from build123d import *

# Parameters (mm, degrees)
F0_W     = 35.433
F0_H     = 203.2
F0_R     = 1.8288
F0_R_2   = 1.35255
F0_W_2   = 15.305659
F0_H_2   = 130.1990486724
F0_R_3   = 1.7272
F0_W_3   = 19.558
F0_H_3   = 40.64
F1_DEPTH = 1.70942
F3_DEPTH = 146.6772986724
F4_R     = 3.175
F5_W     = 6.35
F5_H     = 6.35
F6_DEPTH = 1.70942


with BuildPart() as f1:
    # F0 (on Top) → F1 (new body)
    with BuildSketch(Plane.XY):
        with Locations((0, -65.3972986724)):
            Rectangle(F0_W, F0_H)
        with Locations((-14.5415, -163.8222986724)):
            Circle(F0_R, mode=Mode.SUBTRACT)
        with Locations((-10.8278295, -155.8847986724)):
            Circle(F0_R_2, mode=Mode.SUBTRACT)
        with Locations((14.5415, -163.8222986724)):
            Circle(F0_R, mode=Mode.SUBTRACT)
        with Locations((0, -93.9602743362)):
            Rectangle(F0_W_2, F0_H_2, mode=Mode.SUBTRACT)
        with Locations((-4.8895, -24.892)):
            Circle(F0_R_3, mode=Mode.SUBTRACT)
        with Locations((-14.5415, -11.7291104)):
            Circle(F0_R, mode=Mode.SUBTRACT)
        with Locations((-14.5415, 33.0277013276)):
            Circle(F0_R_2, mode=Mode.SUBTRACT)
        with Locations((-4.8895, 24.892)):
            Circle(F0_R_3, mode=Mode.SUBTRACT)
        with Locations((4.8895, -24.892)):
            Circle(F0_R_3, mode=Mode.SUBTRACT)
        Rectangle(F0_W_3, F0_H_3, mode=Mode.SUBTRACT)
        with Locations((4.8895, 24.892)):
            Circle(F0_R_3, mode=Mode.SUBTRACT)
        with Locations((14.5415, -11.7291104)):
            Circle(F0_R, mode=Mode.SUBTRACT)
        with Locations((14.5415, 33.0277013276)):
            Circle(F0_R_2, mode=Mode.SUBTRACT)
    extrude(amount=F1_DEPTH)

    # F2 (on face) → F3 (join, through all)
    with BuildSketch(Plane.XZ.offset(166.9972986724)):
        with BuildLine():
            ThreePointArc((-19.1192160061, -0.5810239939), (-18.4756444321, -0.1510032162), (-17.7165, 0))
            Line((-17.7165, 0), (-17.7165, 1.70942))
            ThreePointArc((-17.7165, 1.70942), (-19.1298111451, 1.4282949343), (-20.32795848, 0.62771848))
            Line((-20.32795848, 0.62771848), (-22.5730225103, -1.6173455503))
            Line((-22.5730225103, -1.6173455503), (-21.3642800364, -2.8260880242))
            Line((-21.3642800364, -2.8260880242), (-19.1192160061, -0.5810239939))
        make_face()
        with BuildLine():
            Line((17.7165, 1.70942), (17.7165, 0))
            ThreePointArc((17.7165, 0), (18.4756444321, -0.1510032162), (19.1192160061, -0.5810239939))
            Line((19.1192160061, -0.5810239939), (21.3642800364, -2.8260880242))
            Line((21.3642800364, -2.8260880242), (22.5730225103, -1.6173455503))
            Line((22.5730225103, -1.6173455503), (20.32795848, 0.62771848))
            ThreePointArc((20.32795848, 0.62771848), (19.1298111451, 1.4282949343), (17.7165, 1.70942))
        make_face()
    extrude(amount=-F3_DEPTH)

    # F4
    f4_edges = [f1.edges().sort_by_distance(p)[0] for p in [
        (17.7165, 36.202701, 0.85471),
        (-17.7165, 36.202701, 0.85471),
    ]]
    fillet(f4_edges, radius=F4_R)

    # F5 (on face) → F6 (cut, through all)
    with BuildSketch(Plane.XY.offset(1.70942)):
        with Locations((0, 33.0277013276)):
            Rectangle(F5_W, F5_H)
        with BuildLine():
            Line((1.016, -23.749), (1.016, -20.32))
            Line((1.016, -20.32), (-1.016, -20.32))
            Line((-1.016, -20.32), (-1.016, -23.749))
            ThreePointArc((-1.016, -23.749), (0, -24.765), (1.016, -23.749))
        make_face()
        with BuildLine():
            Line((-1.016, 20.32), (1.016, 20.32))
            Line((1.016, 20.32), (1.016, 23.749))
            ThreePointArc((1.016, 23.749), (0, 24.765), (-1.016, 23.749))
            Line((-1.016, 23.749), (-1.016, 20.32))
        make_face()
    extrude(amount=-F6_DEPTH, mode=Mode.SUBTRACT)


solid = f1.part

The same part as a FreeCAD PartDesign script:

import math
import FreeCAD as App
import Part
import Sketcher
from FreeCAD import Vector
Q = App.Units.Quantity


def edges_at(feature, points):
    """Names of the edges that pass closest to the given points."""
    edges = feature.Shape.Edges
    near = lambda p: min(range(len(edges)), key=lambda i: edges[i].distToShape(Part.Vertex(*p))[0])
    return sorted({f"Edge{near(p) + 1}" for p in points})


def add_polygon(sketch, points):
    """Adds a closed chain of lines whose ends are joined by coincident constraints."""
    first, n = sketch.GeometryCount, len(points)
    for a, b in zip(points, points[1:] + points[:1]):
        sketch.addGeometry(Part.LineSegment(App.Vector(*a, 0), App.Vector(*b, 0)), False)
    for i in range(n):
        sketch.addConstraint(Sketcher.Constraint("Coincident", first + i, 2, first + (i + 1) % n, 1))

doc = App.newDocument("Part")
params = doc.addObject("Spreadsheet::Sheet", "Params")
for row, (alias, value) in enumerate([
    ("sketch1_height", "8 in"),
    ("sketch1_diameter", "0.144 in"),
    ("sketch1_diameter2", "0.136 in"),
    ("sketch1_height2", "1.6 in"),
    ("sketch1_width", "0.77 in"),
    ("pad1_length", "0.0673 in"),
    ("sketch2_length", "0.125 in"),
    ("pad2_length", "146.677299 mm"),
    ("fillet_radius", "0.125 in"),
    ("sketch3_radius", "0.04 in"),
    ("sketch3_width", "0.25 in"),
    ("sketch3_height", "0.135 in"),
], start=1):
    params.set(f"A{row}", alias)
    params.set(f"B{row}", "=" + value)
    params.setAlias(f"B{row}", alias)

body = doc.addObject("PartDesign::Body", "Body")

# Sketch on XY plane
sketch1 = doc.addObject("Sketcher::SketchObject", "Sketch")
body.addObject(sketch1)
sketch1.AttachmentSupport = (doc.XY_Plane, [""])
sketch1.MapMode = "FlatFace"
add_polygon(sketch1, [(-17.7, 36.2), (-17.7, -167), (17.7, -167), (17.7, 36.2)])  # lines 0-3
sketch1.addGeometry(Part.Circle(Vector(-14.5, -163.8, 0), Vector(0, 0, 1), 1.8), False)  # 4
sketch1.addGeometry(Part.Circle(Vector(-10.8, -155.9, 0), Vector(0, 0, 1), 1.4), False)  # 5
sketch1.addGeometry(Part.Circle(Vector(14.5, -163.8, 0), Vector(0, 0, 1), 1.8), False)  # 6
add_polygon(sketch1, [(7.7, -159.1), (-7.7, -159.1), (-7.7, -28.9), (7.7, -28.9)])  # lines 7-10
sketch1.addGeometry(Part.Circle(Vector(-4.9, -24.9, 0), Vector(0, 0, 1), 1.7), False)  # 11
sketch1.addGeometry(Part.Circle(Vector(-14.5, -11.7, 0), Vector(0, 0, 1), 1.8), False)  # 12
sketch1.addGeometry(Part.Circle(Vector(-14.5, 33, 0), Vector(0, 0, 1), 1.4), False)  # 13
sketch1.addGeometry(Part.Circle(Vector(-4.9, 24.9, 0), Vector(0, 0, 1), 1.7), False)  # 14
sketch1.addGeometry(Part.Circle(Vector(4.9, -24.9, 0), Vector(0, 0, 1), 1.7), False)  # 15
add_polygon(sketch1, [(9.8, -20.3), (-9.8, -20.3), (-9.8, 20.3), (9.8, 20.3)])  # lines 16-19
sketch1.addGeometry(Part.Circle(Vector(4.9, 24.9, 0), Vector(0, 0, 1), 1.7), False)  # 20
sketch1.addGeometry(Part.Circle(Vector(14.5, -11.7, 0), Vector(0, 0, 1), 1.8), False)  # 21
sketch1.addGeometry(Part.Circle(Vector(14.5, 33, 0), Vector(0, 0, 1), 1.4), False)  # 22
sketch1.addConstraint([
    Sketcher.Constraint("Vertical", 0),
    Sketcher.Constraint("Horizontal", 1),
    Sketcher.Constraint("Vertical", 2),
    Sketcher.Constraint("Horizontal", 3),
    Sketcher.Constraint("Horizontal", 7),
    Sketcher.Constraint("Vertical", 8),
    Sketcher.Constraint("Horizontal", 9),
    Sketcher.Constraint("Vertical", 10),
    Sketcher.Constraint("Horizontal", 16),
    Sketcher.Constraint("Vertical", 17),
    Sketcher.Constraint("Horizontal", 18),
    Sketcher.Constraint("Vertical", 19),
    Sketcher.Constraint("Equal", 4, 6),
    Sketcher.Constraint("Equal", 6, 12),
    Sketcher.Constraint("Equal", 5, 13),
    Sketcher.Constraint("Equal", 11, 14),
    Sketcher.Constraint("Equal", 14, 15),
    Sketcher.Constraint("Equal", 15, 20),
    Sketcher.Constraint("Equal", 12, 21),
    Sketcher.Constraint("Equal", 13, 22),
    Sketcher.Constraint("Symmetric", 14, 3, 15, 3, -1, 1),
    Sketcher.Constraint("Symmetric", 11, 3, 20, 3, -1, 1),
    Sketcher.Constraint("Symmetric", 16, 2, 18, 2, -1, 1),
    Sketcher.Constraint("Symmetric", 4, 3, 6, 3, -2),
    Sketcher.Constraint("Symmetric", 11, 3, 15, 3, -2),
    Sketcher.Constraint("Symmetric", 12, 3, 21, 3, -2),
    Sketcher.Constraint("Symmetric", 13, 3, 22, 3, -2),
    Sketcher.Constraint("Vertical", 4, 3, 12, 3),
    Sketcher.Constraint("Vertical", 12, 3, 13, 3),
    Sketcher.Constraint("DistanceY", 0, 2, 0, 1, Q("8 in")),
    Sketcher.Constraint("Diameter", 4, Q("0.144 in")),
    Sketcher.Constraint("Diameter", 11, Q("0.136 in")),
    Sketcher.Constraint("DistanceY", 17, 1, 17, 2, Q("1.6 in")),
    Sketcher.Constraint("Diameter", 5, Q("0.1065 in")),
    Sketcher.Constraint("DistanceX", 16, 2, 16, 1, Q("0.77 in")),
    Sketcher.Constraint("DistanceX", 1, 1, 1, 2, Q("1.395 in")),
    Sketcher.Constraint("DistanceY", 11, 3, -1, 1, Q("0.98 in")),
    Sketcher.Constraint("DistanceX", 4, 3, 11, 3, Q("0.38 in")),
    Sketcher.Constraint("DistanceY", 4, 3, 13, 3, Q("7.75 in")),
    Sketcher.Constraint("DistanceX", 0, 2, 6, 3, Q("1.27 in")),
    Sketcher.Constraint("DistanceX", 4, 3, 1, 2, Q("1.27 in")),
    Sketcher.Constraint("DistanceY", 4, 3, 5, 3, Q("0.3125 in")),
    Sketcher.Constraint("DistanceY", 0, 2, 4, 3, Q("0.125 in")),
    Sketcher.Constraint("DistanceX", 5, 3, 7, 2, Q("0.125 in")),
    Sketcher.Constraint("DistanceY", 7, 2, 5, 3, Q("0.125 in")),
    Sketcher.Constraint("DistanceY", 8, 2, 11, 3, Q("0.15625 in")),
    Sketcher.Constraint("DistanceX", 7, 2, 7, 1, Q("15.305659 mm")),
    Sketcher.Constraint("DistanceY", 8, 1, 8, 2, Q("130.199049 mm")),
    Sketcher.Constraint("DistanceX", 5, 3, -1, 1, Q("10.827829 mm")),
    Sketcher.Constraint("DistanceY", 12, 3, -1, 1, Q("11.72911 mm")),
])
sketch1.setExpression("Constraints[41]", "Params.sketch1_height")
sketch1.setExpression("Constraints[42]", "Params.sketch1_diameter")
sketch1.setExpression("Constraints[43]", "Params.sketch1_diameter2")
sketch1.setExpression("Constraints[44]", "Params.sketch1_height2")
sketch1.setExpression("Constraints[46]", "Params.sketch1_width")
pad1 = doc.addObject("PartDesign::Pad", "Pad")
body.addObject(pad1)
pad1.Profile = sketch1
pad1.setExpression("Length", "Params.pad1_length")

# Sketch on XZ plane
sketch2 = doc.addObject("Sketcher::SketchObject", "Sketch001")
body.addObject(sketch2)
sketch2.AttachmentSupport = (doc.XZ_Plane, [""])
sketch2.MapMode = "FlatFace"
sketch2.AttachmentOffset = App.Placement(Vector(0, 0, 166.997299), App.Rotation())
sketch2.addGeometry([
    Part.ArcOfCircle(Part.Circle(Vector(-17.7, -2, 0), Vector(0, 0, 1), 2), math.radians(90), math.radians(135)),  # 0
    Part.LineSegment(Vector(-17.7, 0, 0), Vector(-17.7, 1.7, 0)),  # 1
    Part.ArcOfCircle(Part.Circle(Vector(-17.7, -2, 0), Vector(0, 0, 1), 3.7), math.radians(90), math.radians(135)),  # 2
    Part.LineSegment(Vector(-20.3, 0.6, 0), Vector(-22.6, -1.6, 0)),  # 3
    Part.LineSegment(Vector(-22.6, -1.6, 0), Vector(-21.4, -2.8, 0)),  # 4
    Part.LineSegment(Vector(-21.4, -2.8, 0), Vector(-19.1, -0.6, 0)),  # 5
    Part.LineSegment(Vector(17.7, 1.7, 0), Vector(17.7, 0, 0)),  # 6
    Part.ArcOfCircle(Part.Circle(Vector(17.7, -2, 0), Vector(0, 0, 1), 2), math.radians(45), math.radians(90)),  # 7
    Part.LineSegment(Vector(19.1, -0.6, 0), Vector(21.4, -2.8, 0)),  # 8
    Part.LineSegment(Vector(21.4, -2.8, 0), Vector(22.6, -1.6, 0)),  # 9
    Part.LineSegment(Vector(22.6, -1.6, 0), Vector(20.3, 0.6, 0)),  # 10
    Part.ArcOfCircle(Part.Circle(Vector(17.7, -2, 0), Vector(0, 0, 1), 3.7), math.radians(45), math.radians(90)),  # 11
], False)
sketch2.addConstraint([
    Sketcher.Constraint("Coincident", 0, 1, 1, 1),
    Sketcher.Constraint("Coincident", 1, 2, 2, 1),
    Sketcher.Constraint("Tangent", 2, 2, 3, 1),
    Sketcher.Constraint("Coincident", 3, 2, 4, 1),
    Sketcher.Constraint("Coincident", 4, 2, 5, 1),
    Sketcher.Constraint("Tangent", 5, 2, 0, 2),
    Sketcher.Constraint("Coincident", 6, 2, 7, 2),
    Sketcher.Constraint("Tangent", 7, 1, 8, 1),
    Sketcher.Constraint("Coincident", 8, 2, 9, 1),
    Sketcher.Constraint("Coincident", 9, 2, 10, 1),
    Sketcher.Constraint("Tangent", 10, 2, 11, 1),
    Sketcher.Constraint("Coincident", 11, 2, 6, 1),
    Sketcher.Constraint("Vertical", 1),
    Sketcher.Constraint("Vertical", 6),
    Sketcher.Constraint("Coincident", 2, 3, 0, 3),
    Sketcher.Constraint("Coincident", 11, 3, 7, 3),
    Sketcher.Constraint("Equal", 0, 7),
    Sketcher.Constraint("Equal", 2, 11),
    Sketcher.Constraint("Symmetric", 0, 1, 6, 2, -1, 1),
    Sketcher.Constraint("Symmetric", 0, 3, 7, 3, -2),
    Sketcher.Constraint("Symmetric", 4, 2, 8, 2, -2),
    Sketcher.Constraint("Symmetric", 3, 2, 9, 2, -2),
    Sketcher.Constraint("Perpendicular", 3, 4),
    Sketcher.Constraint("Perpendicular", 4, 5),
    Sketcher.Constraint("Perpendicular", 5, 8),
    Sketcher.Constraint("Vertical", 2, 3, 0, 1),
    Sketcher.Constraint("Radius", 0, Q("0.0781 in")),
    Sketcher.Constraint("Radius", 2, Q("0.1454 in")),
    Sketcher.Constraint("Distance", 3, Q("0.125 in")),
    Sketcher.Constraint("DistanceX", 0, 3, 7, 3, Q("1.395 in")),
])
sketch2.setExpression("Constraints[28]", "Params.sketch2_length")
pad2 = doc.addObject("PartDesign::Pad", "Pad001")
body.addObject(pad2)
pad2.Profile = sketch2
pad2.setExpression("Length", "Params.pad2_length")
pad2.Reversed = True
doc.recompute()

fillet = doc.addObject("PartDesign::Fillet", "Fillet")
body.addObject(fillet)
fillet.Base = (pad2, edges_at(pad2, [(17.716, 36.203, 0.855), (-17.716, 36.203, 0.855)]))
fillet.setExpression("Radius", "Params.fillet_radius")

# Sketch on XY plane
sketch3 = doc.addObject("Sketcher::SketchObject", "Sketch002")
body.addObject(sketch3)
sketch3.AttachmentSupport = (doc.XY_Plane, [""])
sketch3.MapMode = "FlatFace"
sketch3.AttachmentOffset = App.Placement(Vector(0, 0, 0.0673 * 25.4), App.Rotation())
add_polygon(sketch3, [(-3.2, 36.2), (-3.2, 29.9), (3.2, 29.9), (3.2, 36.2)])  # lines 0-3
sketch3.addGeometry(Part.LineSegment(Vector(1, -23.7, 0), Vector(1, -20.3, 0)), False)  # 4
sketch3.addGeometry(Part.LineSegment(Vector(1, -20.3, 0), Vector(-1, -20.3, 0)), False)  # 5
sketch3.addGeometry(Part.LineSegment(Vector(-1, -20.3, 0), Vector(-1, -23.7, 0)), False)  # 6
sketch3.addGeometry(Part.ArcOfCircle(Part.Circle(Vector(0, -23.7, 0), Vector(0, 0, 1), 1), math.radians(180), math.radians(360)), False)  # 7
sketch3.addGeometry(Part.LineSegment(Vector(-1, 20.3, 0), Vector(1, 20.3, 0)), False)  # 8
sketch3.addGeometry(Part.LineSegment(Vector(1, 20.3, 0), Vector(1, 23.7, 0)), False)  # 9
sketch3.addGeometry(Part.ArcOfCircle(Part.Circle(Vector(0, 23.7, 0), Vector(0, 0, 1), 1), math.radians(0), math.radians(180)), False)  # 10
sketch3.addGeometry(Part.LineSegment(Vector(-1, 23.7, 0), Vector(-1, 20.3, 0)), False)  # 11
sketch3.addConstraint([
    Sketcher.Constraint("Coincident", 4, 2, 5, 1),
    Sketcher.Constraint("Coincident", 5, 2, 6, 1),
    Sketcher.Constraint("Tangent", 6, 2, 7, 1),
    Sketcher.Constraint("Tangent", 7, 2, 4, 1),
    Sketcher.Constraint("Coincident", 8, 2, 9, 1),
    Sketcher.Constraint("Tangent", 9, 2, 10, 1),
    Sketcher.Constraint("Tangent", 10, 2, 11, 1),
    Sketcher.Constraint("Coincident", 11, 2, 8, 1),
    Sketcher.Constraint("Vertical", 0),
    Sketcher.Constraint("Horizontal", 1),
    Sketcher.Constraint("Vertical", 2),
    Sketcher.Constraint("Horizontal", 3),
    Sketcher.Constraint("Vertical", 4),
    Sketcher.Constraint("Horizontal", 5),
    Sketcher.Constraint("Vertical", 6),
    Sketcher.Constraint("Horizontal", 8),
    Sketcher.Constraint("Vertical", 9),
    Sketcher.Constraint("Vertical", 11),
    Sketcher.Constraint("Equal", 7, 10),
    Sketcher.Constraint("Symmetric", 7, 3, 10, 3, -1, 1),
    Sketcher.Constraint("Symmetric", 4, 2, 8, 2, -1),
    Sketcher.Constraint("Equal", 3, 0),
    Sketcher.Constraint("Radius", 7, Q("0.04 in")),
    Sketcher.Constraint("DistanceX", 1, 1, 1, 2, Q("0.25 in")),
    Sketcher.Constraint("DistanceY", 4, 2, -1, 1, Q("0.8 in")),
    Sketcher.Constraint("DistanceY", 4, 1, 4, 2, Q("0.135 in")),
    Sketcher.Constraint("DistanceX", 0, 2, -1, 1, Q("0.125 in")),
    Sketcher.Constraint("DistanceY", -1, 1, 0, 2, Q("29.852701 mm")),
])
sketch3.setExpression("Constraints[26]", "Params.sketch3_radius")
sketch3.setExpression("Constraints[27]", "Params.sketch3_width")
sketch3.setExpression("Constraints[29]", "Params.sketch3_height")
pocket1 = doc.addObject("PartDesign::Pocket", "Pocket")
body.addObject(pocket1)
pocket1.Profile = sketch3
pocket1.Type = "ThroughAll"

doc.recompute()
